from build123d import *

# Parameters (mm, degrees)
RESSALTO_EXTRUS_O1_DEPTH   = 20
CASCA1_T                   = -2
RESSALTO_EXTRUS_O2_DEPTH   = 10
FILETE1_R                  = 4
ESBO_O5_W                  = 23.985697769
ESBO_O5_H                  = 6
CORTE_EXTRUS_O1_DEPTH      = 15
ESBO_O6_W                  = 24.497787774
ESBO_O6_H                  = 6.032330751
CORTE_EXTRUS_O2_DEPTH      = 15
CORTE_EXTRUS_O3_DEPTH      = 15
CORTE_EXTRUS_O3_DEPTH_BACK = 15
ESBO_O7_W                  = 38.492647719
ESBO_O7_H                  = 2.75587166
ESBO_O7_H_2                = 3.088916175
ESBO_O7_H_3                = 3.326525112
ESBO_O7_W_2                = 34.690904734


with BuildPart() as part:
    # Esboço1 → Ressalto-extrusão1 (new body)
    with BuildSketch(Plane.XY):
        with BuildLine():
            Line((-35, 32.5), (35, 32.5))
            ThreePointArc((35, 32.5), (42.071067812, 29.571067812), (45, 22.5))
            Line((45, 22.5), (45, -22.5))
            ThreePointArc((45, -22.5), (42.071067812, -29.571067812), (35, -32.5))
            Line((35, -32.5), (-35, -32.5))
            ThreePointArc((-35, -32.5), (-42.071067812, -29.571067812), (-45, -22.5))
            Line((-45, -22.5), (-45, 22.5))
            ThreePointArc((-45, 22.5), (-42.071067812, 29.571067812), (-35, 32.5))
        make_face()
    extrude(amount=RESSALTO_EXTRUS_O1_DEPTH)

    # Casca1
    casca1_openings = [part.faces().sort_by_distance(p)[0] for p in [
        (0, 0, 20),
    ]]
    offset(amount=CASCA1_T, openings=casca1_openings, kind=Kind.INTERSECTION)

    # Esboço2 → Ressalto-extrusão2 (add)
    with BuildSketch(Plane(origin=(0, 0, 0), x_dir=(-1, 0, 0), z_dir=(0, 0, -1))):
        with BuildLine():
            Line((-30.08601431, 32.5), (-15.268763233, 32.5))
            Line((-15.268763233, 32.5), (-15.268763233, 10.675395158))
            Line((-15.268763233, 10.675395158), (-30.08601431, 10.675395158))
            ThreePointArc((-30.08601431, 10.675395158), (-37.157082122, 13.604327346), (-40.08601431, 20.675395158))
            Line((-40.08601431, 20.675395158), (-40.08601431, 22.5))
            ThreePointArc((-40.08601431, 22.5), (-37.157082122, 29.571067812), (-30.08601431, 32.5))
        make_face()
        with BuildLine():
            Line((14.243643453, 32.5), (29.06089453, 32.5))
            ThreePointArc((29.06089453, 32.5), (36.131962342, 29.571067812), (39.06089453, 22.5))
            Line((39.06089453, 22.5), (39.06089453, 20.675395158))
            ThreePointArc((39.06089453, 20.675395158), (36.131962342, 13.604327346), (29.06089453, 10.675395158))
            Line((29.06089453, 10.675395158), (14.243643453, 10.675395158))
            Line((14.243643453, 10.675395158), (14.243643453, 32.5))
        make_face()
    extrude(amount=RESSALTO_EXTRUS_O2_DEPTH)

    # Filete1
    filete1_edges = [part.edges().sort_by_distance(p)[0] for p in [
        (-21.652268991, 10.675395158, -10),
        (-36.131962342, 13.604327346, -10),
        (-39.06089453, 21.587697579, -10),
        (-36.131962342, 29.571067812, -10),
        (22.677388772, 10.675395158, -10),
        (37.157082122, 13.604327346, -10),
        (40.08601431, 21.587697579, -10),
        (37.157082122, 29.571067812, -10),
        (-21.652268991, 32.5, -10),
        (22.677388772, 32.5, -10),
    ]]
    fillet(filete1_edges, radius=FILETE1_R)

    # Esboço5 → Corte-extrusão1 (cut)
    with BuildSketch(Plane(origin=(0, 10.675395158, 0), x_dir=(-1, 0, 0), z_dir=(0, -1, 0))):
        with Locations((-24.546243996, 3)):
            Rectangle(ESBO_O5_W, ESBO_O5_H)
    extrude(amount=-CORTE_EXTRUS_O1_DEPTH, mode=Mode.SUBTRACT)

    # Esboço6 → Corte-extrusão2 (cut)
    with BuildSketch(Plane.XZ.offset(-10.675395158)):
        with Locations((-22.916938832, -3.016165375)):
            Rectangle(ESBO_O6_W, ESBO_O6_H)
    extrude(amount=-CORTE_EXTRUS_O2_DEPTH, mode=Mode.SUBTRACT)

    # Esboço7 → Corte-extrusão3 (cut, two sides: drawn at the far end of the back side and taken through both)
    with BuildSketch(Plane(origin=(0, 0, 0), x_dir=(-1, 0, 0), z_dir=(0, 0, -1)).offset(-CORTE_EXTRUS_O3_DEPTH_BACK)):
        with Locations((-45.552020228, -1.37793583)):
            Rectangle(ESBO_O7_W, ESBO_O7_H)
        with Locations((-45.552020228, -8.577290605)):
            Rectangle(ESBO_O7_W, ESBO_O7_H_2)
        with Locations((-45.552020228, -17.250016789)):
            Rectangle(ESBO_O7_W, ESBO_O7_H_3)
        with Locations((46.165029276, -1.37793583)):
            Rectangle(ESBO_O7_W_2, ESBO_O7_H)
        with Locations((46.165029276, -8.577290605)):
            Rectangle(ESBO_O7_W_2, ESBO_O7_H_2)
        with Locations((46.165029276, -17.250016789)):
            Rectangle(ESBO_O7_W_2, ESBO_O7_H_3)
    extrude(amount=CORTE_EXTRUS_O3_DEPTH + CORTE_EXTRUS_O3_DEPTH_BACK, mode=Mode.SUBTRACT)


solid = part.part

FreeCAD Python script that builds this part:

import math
import FreeCAD as App
import Part
import Sketcher


def edges_at(feature, points):
    """Names of the edges that pass closest to the given points."""
    edges = feature.Shape.Edges
    near = lambda p: min(range(len(edges)), key=lambda i: edges[i].distToShape(Part.Vertex(*p))[0])
    return sorted({f"Edge{near(p) + 1}" for p in points})


def faces_at(feature, points):
    """Names of the faces that lie closest to the given points."""
    faces = feature.Shape.Faces
    near = lambda p: min(range(len(faces)), key=lambda i: faces[i].distToShape(Part.Vertex(*p))[0])
    return sorted({f"Face{near(p) + 1}" for p in points})


def add_polygon(sketch, points):
    """Adds a closed chain of lines whose ends are joined by coincident constraints."""
    first, n = sketch.GeometryCount, len(points)
    for a, b in zip(points, points[1:] + points[:1]):
        sketch.addGeometry(Part.LineSegment(App.Vector(*a, 0), App.Vector(*b, 0)), False)
    for i in range(n):
        sketch.addConstraint(Sketcher.Constraint("Coincident", first + i, 2, first + (i + 1) % n, 1))

doc = App.newDocument("Part")
params = doc.addObject("Spreadsheet::Sheet", "Params")
for row, (alias, value) in enumerate([
    ("sketch1_radius", "10 mm"),
    ("sketch1_width", "70 mm"),
    ("sketch1_height", "45 mm"),
    ("pad1_length", "20 mm"),
    ("thickness_wall", "2 mm"),
    ("sketch2_radius", "10 mm"),
    ("pad2_length", "10 mm"),
    ("fillet_radius", "4 mm"),
    ("sketch3_height", "6 mm"),
    ("pocket1_length", "15 mm"),
    ("pocket2_length", "15 mm"),
    ("pocket3_length", "15 mm"),
    ("pocket3_length2", "15 mm"),
], start=1):
    params.set(f"A{row}", alias)
    params.set(f"B{row}", "=" + value)
    params.setAlias(f"B{row}", alias)

body = doc.addObject("PartDesign::Body", "Body")

# Sketch on XY plane
sketch1 = doc.addObject("Sketcher::SketchObject", "Sketch")
body.addObject(sketch1)
sketch1.AttachmentSupport = (doc.XY_Plane, [""])
sketch1.MapMode = "FlatFace"
sketch1.addGeometry(Part.LineSegment(App.Vector(35, 32.5, 0), App.Vector(-35, 32.5, 0)), False)
sketch1.addGeometry(Part.ArcOfCircle(Part.Circle(App.Vector(-35, 22.5, 0), App.Vector(0, 0, 1), 10), math.radians(90), math.radians(180)), False)
sketch1.addGeometry(Part.LineSegment(App.Vector(-45, 22.5, 0), App.Vector(-45, -22.5, 0)), False)
sketch1.addGeometry(Part.ArcOfCircle(Part.Circle(App.Vector(-35, -22.5, 0), App.Vector(0, 0, 1), 10), math.radians(180), math.radians(270)), False)
sketch1.addGeometry(Part.LineSegment(App.Vector(-35, -32.5, 0), App.Vector(35, -32.5, 0)), False)
sketch1.addGeometry(Part.ArcOfCircle(Part.Circle(App.Vector(35, -22.5, 0), App.Vector(0, 0, 1), 10), math.radians(-90), math.radians(0)), False)
sketch1.addGeometry(Part.LineSegment(App.Vector(45, -22.5, 0), App.Vector(45, 22.5, 0)), False)
sketch1.addGeometry(Part.ArcOfCircle(Part.Circle(App.Vector(35, 22.5, 0), App.Vector(0, 0, 1), 10), math.radians(0), math.radians(90)), False)
sketch1.addConstraint(Sketcher.Constraint("Tangent", 0, 2, 1, 1))
sketch1.addConstraint(Sketcher.Constraint("Tangent", 1, 2, 2, 1))
sketch1.addConstraint(Sketcher.Constraint("Tangent", 2, 2, 3, 1))
sketch1.addConstraint(Sketcher.Constraint("Tangent", 3, 2, 4, 1))
sketch1.addConstraint(Sketcher.Constraint("Tangent", 4, 2, 5, 1))
sketch1.addConstraint(Sketcher.Constraint("Tangent", 5, 2, 6, 1))
sketch1.addConstraint(Sketcher.Constraint("Tangent", 6, 2, 7, 1))
sketch1.addConstraint(Sketcher.Constraint("Tangent", 7, 2, 0, 1))
sketch1.addConstraint(Sketcher.Constraint("Horizontal", 0))
sketch1.addConstraint(Sketcher.Constraint("Vertical", 2))
sketch1.addConstraint(Sketcher.Constraint("Horizontal", 4))
sketch1.addConstraint(Sketcher.Constraint("Vertical", 6))
sketch1.addConstraint(Sketcher.Constraint("Equal", 1, 3))
sketch1.addConstraint(Sketcher.Constraint("Equal", 3, 5))
sketch1.addConstraint(Sketcher.Constraint("Equal", 5, 7))
sketch1.addConstraint(Sketcher.Constraint("Symmetric", 1, 3, 5, 3, -1, 1))
sketch1.addConstraint(Sketcher.Constraint("Radius", 1, 10.0))
sketch1.addConstraint(Sketcher.Constraint("DistanceX", 0, 2, 0, 1, 70.0))
sketch1.addConstraint(Sketcher.Constraint("DistanceY", 2, 2, 2, 1, 45.0))
sketch1.setExpression("Constraints[16]", "Params.sketch1_radius")
sketch1.setExpression("Constraints[17]", "Params.sketch1_width")
sketch1.setExpression("Constraints[18]", "Params.sketch1_height")
pad1 = doc.addObject("PartDesign::Pad", "Pad")
body.addObject(pad1)
pad1.Profile = sketch1
pad1.setExpression("Length", "Params.pad1_length")
doc.recompute()

thickness = doc.addObject("PartDesign::Thickness", "Thickness")
body.addObject(thickness)
thickness.Base = (pad1, faces_at(pad1, [(0, 0, 20)]))
thickness.setExpression("Value", "Params.thickness_wall")
thickness.Reversed = True
thickness.Join = "Intersection"

# Sketch on XY plane
sketch2 = doc.addObject("Sketcher::SketchObject", "Sketch001")
body.addObject(sketch2)
sketch2.AttachmentSupport = (doc.XY_Plane, [""])
sketch2.MapMode = "FlatFace"
sketch2.addGeometry(Part.LineSegment(App.Vector(15.268763, 32.5, 0), App.Vector(30.086014, 32.5, 0)), False)
sketch2.addGeometry(Part.ArcOfCircle(Part.Circle(App.Vector(30.086014, 22.5, 0), App.Vector(0, 0, 1), 10), math.radians(0), math.radians(90)), False)
sketch2.addGeometry(Part.LineSegment(App.Vector(40.086014, 22.5, 0), App.Vector(40.086014, 20.675395, 0)), False)
sketch2.addGeometry(Part.ArcOfCircle(Part.Circle(App.Vector(30.086014, 20.675395, 0), App.Vector(0, 0, 1), 10), math.radians(-90), math.radians(0)), False)
sketch2.addGeometry(Part.LineSegment(App.Vector(30.086014, 10.675395, 0), App.Vector(15.268763, 10.675395, 0)), False)
sketch2.addGeometry(Part.LineSegment(App.Vector(15.268763, 10.675395, 0), App.Vector(15.268763, 32.5, 0)), False)
sketch2.addGeometry(Part.LineSegment(App.Vector(-29.060895, 32.5, 0), App.Vector(-14.243643, 32.5, 0)), False)
sketch2.addGeometry(Part.LineSegment(App.Vector(-14.243643, 32.5, 0), App.Vector(-14.243643, 10.675395, 0)), False)
sketch2.addGeometry(Part.LineSegment(App.Vector(-14.243643, 10.675395, 0), App.Vector(-29.060895, 10.675395, 0)), False)
sketch2.addGeometry(Part.ArcOfCircle(Part.Circle(App.Vector(-29.060895, 20.675395, 0), App.Vector(0, 0, 1), 10), math.radians(180), math.radians(270)), False)
sketch2.addGeometry(Part.LineSegment(App.Vector(-39.060895, 20.675395, 0), App.Vector(-39.060895, 22.5, 0)), False)
sketch2.addGeometry(Part.ArcOfCircle(Part.Circle(App.Vector(-29.060895, 22.5, 0), App.Vector(0, 0, 1), 10), math.radians(90), math.radians(180)), False)
sketch2.addConstraint(Sketcher.Constraint("Tangent", 0, 2, 1, 2))
sketch2.addConstraint(Sketcher.Constraint("Tangent", 1, 1, 2, 1))
sketch2.addConstraint(Sketcher.Constraint("Tangent", 2, 2, 3, 2))
sketch2.addConstraint(Sketcher.Constraint("Tangent", 3, 1, 4, 1))
sketch2.addConstraint(Sketcher.Constraint("Coincident", 4, 2, 5, 1))
sketch2.addConstraint(Sketcher.Constraint("Coincident", 5, 2, 0, 1))
sketch2.addConstraint(Sketcher.Constraint("Coincident", 6, 2, 7, 1))
sketch2.addConstraint(Sketcher.Constraint("Coincident", 7, 2, 8, 1))
sketch2.addConstraint(Sketcher.Constraint("Tangent", 8, 2, 9, 2))
sketch2.addConstraint(Sketcher.Constraint("Tangent", 9, 1, 10, 1))
sketch2.addConstraint(Sketcher.Constraint("Tangent", 10, 2, 11, 2))
sketch2.addConstraint(Sketcher.Constraint("Tangent", 11, 1, 6, 1))
sketch2.addConstraint(Sketcher.Constraint("Horizontal", 0))
sketch2.addConstraint(Sketcher.Constraint("Vertical", 2))
sketch2.addConstraint(Sketcher.Constraint("Horizontal", 4))
sketch2.addConstraint(Sketcher.Constraint("Vertical", 5))
sketch2.addConstraint(Sketcher.Constraint("Horizontal", 6))
sketch2.addConstraint(Sketcher.Constraint("Vertical", 7))
sketch2.addConstraint(Sketcher.Constraint("Horizontal", 8))
sketch2.addConstraint(Sketcher.Constraint("Vertical", 10))
sketch2.addConstraint(Sketcher.Constraint("Equal", 1, 3))
sketch2.addConstraint(Sketcher.Constraint("Equal", 3, 9))
sketch2.addConstraint(Sketcher.Constraint("Equal", 9, 11))
sketch2.addConstraint(Sketcher.Constraint("Horizontal", 3, 3, 9, 3))
sketch2.addConstraint(Sketcher.Constraint("Horizontal", 1, 3, 11, 3))
sketch2.addConstraint(Sketcher.Constraint("Equal", 4, 6))
sketch2.addConstraint(Sketcher.Constraint("Radius", 1, 10.0))
sketch2.addConstraint(Sketcher.Constraint("DistanceY", -1, 1, 1, 3, 22.5))
sketch2.addConstraint(Sketcher.Constraint("DistanceX", 0, 1, 0, 2, 14.817251))
sketch2.addConstraint(Sketcher.Constraint("DistanceY", 2, 2, 2, 1, 1.824605))
sketch2.addConstraint(Sketcher.Constraint("DistanceX", 9, 3, 3, 3, 59.146909))
sketch2.addConstraint(Sketcher.Constraint("DistanceX", -1, 1, 1, 3, 30.086014))
sketch2.setExpression("Constraints[26]", "Params.sketch2_radius")
pad2 = doc.addObject("PartDesign::Pad", "Pad001")
body.addObject(pad2)
pad2.Profile = sketch2
pad2.setExpression("Length", "Params.pad2_length")
pad2.Reversed = True
doc.recompute()

fillet = doc.addObject("PartDesign::Fillet", "Fillet")
body.addObject(fillet)
fillet.Base = (pad2, edges_at(pad2, [
    (-21.652, 10.675, -10),
    (-36.132, 13.604, -10),
    (-39.061, 21.588, -10),
    (-36.132, 29.571, -10),
    (22.677, 10.675, -10),
    (37.157, 13.604, -10),
    (40.086, 21.588, -10),
    (37.157, 29.571, -10),
    (-21.652, 32.5, -10),
    (22.677, 32.5, -10),
]))
fillet.setExpression("Radius", "Params.fillet_radius")

# Sketch on XZ plane
sketch3 = doc.addObject("Sketcher::SketchObject", "Sketch002")
body.addObject(sketch3)
sketch3.AttachmentSupport = (doc.XZ_Plane, [""])
sketch3.MapMode = "FlatFace"
sketch3.AttachmentOffset = App.Placement(App.Vector(0, 0, -10.675395), App.Rotation())
add_polygon(sketch3, [(36.539093, -6), (36.539093, 0), (12.553395, 0), (12.553395, -6)])  # lines 0-3
sketch3.addConstraint(Sketcher.Constraint("Vertical", 0))
sketch3.addConstraint(Sketcher.Constraint("Horizontal", 1))
sketch3.addConstraint(Sketcher.Constraint("Vertical", 2))
sketch3.addConstraint(Sketcher.Constraint("Horizontal", 3))
sketch3.addConstraint(Sketcher.Constraint("PointOnObject", 0, 2, -1))
sketch3.addConstraint(Sketcher.Constraint("DistanceY", 0, 1, 0, 2, 6.0))
sketch3.addConstraint(Sketcher.Constraint("DistanceX", 1, 2, 1, 1, 23.985698))
sketch3.addConstraint(Sketcher.Constraint("DistanceX", -1, 1, 0, 2, 36.539093))
sketch3.setExpression("Constraints[9]", "Params.sketch3_height")
pocket1 = doc.addObject("PartDesign::Pocket", "Pocket")
body.addObject(pocket1)
pocket1.Profile = sketch3
pocket1.setExpression("Length", "Params.pocket1_length")

# Sketch on XZ plane
sketch4 = doc.addObject("Sketcher::SketchObject", "Sketch003")
body.addObject(sketch4)
sketch4.AttachmentSupport = (doc.XZ_Plane, [""])
sketch4.MapMode = "FlatFace"
sketch4.AttachmentOffset = App.Placement(App.Vector(0, 0, -10.675395), App.Rotation())
add_polygon(sketch4, [(-35.165833, 0), (-35.165833, -6.032331), (-10.668045, -6.032331), (-10.668045, 0)])  # lines 0-3
sketch4.addConstraint(Sketcher.Constraint("Vertical", 0))
sketch4.addConstraint(Sketcher.Constraint("Horizontal", 1))
sketch4.addConstraint(Sketcher.Constraint("Vertical", 2))
sketch4.addConstraint(Sketcher.Constraint("Horizontal", 3))
sketch4.addConstraint(Sketcher.Constraint("PointOnObject", 2, 2, -1))
sketch4.addConstraint(Sketcher.Constraint("DistanceY", 0, 2, 0, 1, 6.032331))
sketch4.addConstraint(Sketcher.Constraint("DistanceX", 1, 1, 1, 2, 24.497788))
sketch4.addConstraint(Sketcher.Constraint("DistanceX", 0, 2, -1, 1, 35.165833))
pocket2 = doc.addObject("PartDesign::Pocket", "Pocket001")
body.addObject(pocket2)
pocket2.Profile = sketch4
pocket2.setExpression("Length", "Params.pocket2_length")

# Sketch on XY plane
sketch5 = doc.addObject("Sketcher::SketchObject", "Sketch004")
body.addObject(sketch5)
sketch5.AttachmentSupport = (doc.XY_Plane, [""])
sketch5.MapMode = "FlatFace"
add_polygon(sketch5, [(64.798344, 0), (64.798344, -2.755872), (26.305696, -2.755872), (26.305696, 0)])  # lines 0-3
add_polygon(sketch5, [(64.798344, -7.032833), (64.798344, -10.121749), (26.305696, -10.121749), (26.305696, -7.032833)])  # lines 4-7
add_polygon(sketch5, [(64.798344, -15.586754), (64.798344, -18.913279), (26.305696, -18.913279), (26.305696, -15.586754)])  # lines 8-11
add_polygon(sketch5, [(-28.819577, 0), (-28.819577, -2.755872), (-63.510482, -2.755872), (-63.510482, 0)])  # lines 12-15
add_polygon(sketch5, [(-28.819577, -7.032833), (-28.819577, -10.121749), (-63.510482, -10.121749), (-63.510482, -7.032833)])  # lines 16-19
add_polygon(sketch5, [(-28.819577, -15.586754), (-28.819577, -18.913279), (-63.510482, -18.913279), (-63.510482, -15.586754)])  # lines 20-23
sketch5.addConstraint(Sketcher.Constraint("Vertical", 0))
sketch5.addConstraint(Sketcher.Constraint("Horizontal", 1))
sketch5.addConstraint(Sketcher.Constraint("Vertical", 2))
sketch5.addConstraint(Sketcher.Constraint("Horizontal", 3))
sketch5.addConstraint(Sketcher.Constraint("Vertical", 4))
sketch5.addConstraint(Sketcher.Constraint("Horizontal", 5))
sketch5.addConstraint(Sketcher.Constraint("Vertical", 6))
sketch5.addConstraint(Sketcher.Constraint("Horizontal", 7))
sketch5.addConstraint(Sketcher.Constraint("Vertical", 8))
sketch5.addConstraint(Sketcher.Constraint("Horizontal", 9))
sketch5.addConstraint(Sketcher.Constraint("Vertical", 10))
sketch5.addConstraint(Sketcher.Constraint("Horizontal", 11))
sketch5.addConstraint(Sketcher.Constraint("Vertical", 12))
sketch5.addConstraint(Sketcher.Constraint("Horizontal", 13))
sketch5.addConstraint(Sketcher.Constraint("Vertical", 14))
sketch5.addConstraint(Sketcher.Constraint("Horizontal", 15))
sketch5.addConstraint(Sketcher.Constraint("Vertical", 16))
sketch5.addConstraint(Sketcher.Constraint("Horizontal", 17))
sketch5.addConstraint(Sketcher.Constraint("Vertical", 18))
sketch5.addConstraint(Sketcher.Constraint("Horizontal", 19))
sketch5.addConstraint(Sketcher.Constraint("Vertical", 20))
sketch5.addConstraint(Sketcher.Constraint("Horizontal", 21))
sketch5.addConstraint(Sketcher.Constraint("Vertical", 22))
sketch5.addConstraint(Sketcher.Constraint("Horizontal", 23))
sketch5.addConstraint(Sketcher.Constraint("PointOnObject", 2, 2, -1))
sketch5.addConstraint(Sketcher.Constraint("PointOnObject", 14, 2, -1))
sketch5.addConstraint(Sketcher.Constraint("Horizontal", 1, 2, 12, 2))
sketch5.addConstraint(Sketcher.Constraint("Horizontal", 5, 2, 16, 2))
sketch5.addConstraint(Sketcher.Constraint("Horizontal", 7, 2, 18, 2))
sketch5.addConstraint(Sketcher.Constraint("Horizontal", 9, 2, 20, 2))
sketch5.addConstraint(Sketcher.Constraint("Horizontal", 11, 2, 22, 2))
sketch5.addConstraint(Sketcher.Constraint("Vertical", 3, 2, 4, 2))
sketch5.addConstraint(Sketcher.Constraint("Vertical", 2, 2, 5, 2))
sketch5.addConstraint(Sketcher.Constraint("Vertical", 7, 2, 8, 2))
sketch5.addConstraint(Sketcher.Constraint("Vertical", 6, 2, 9, 2))
sketch5.addConstraint(Sketcher.Constraint("Vertical", 15, 2, 16, 2))
sketch5.addConstraint(Sketcher.Constraint("Vertical", 14, 2, 17, 2))
sketch5.addConstraint(Sketcher.Constraint("Vertical", 19, 2, 20, 2))
sketch5.addConstraint(Sketcher.Constraint("Vertical", 18, 2, 21, 2))
sketch5.addConstraint(Sketcher.Constraint("DistanceY", 0, 2, 0, 1, 2.755872))
sketch5.addConstraint(Sketcher.Constraint("DistanceX", 1, 2, 1, 1, 38.492648))
sketch5.addConstraint(Sketcher.Constraint("DistanceX", 13, 2, 13, 1, 34.690905))
sketch5.addConstraint(Sketcher.Constraint("DistanceY", 4, 2, 4, 1, 3.088916))
sketch5.addConstraint(Sketcher.Constraint("DistanceY", 8, 2, 8, 1, 3.326525))
sketch5.addConstraint(Sketcher.Constraint("DistanceY", 4, 2, -1, 1, 10.121749))
sketch5.addConstraint(Sketcher.Constraint("DistanceY", 8, 2, -1, 1, 18.913279))
sketch5.addConstraint(Sketcher.Constraint("DistanceX", 13, 2, -1, 1, 63.510482))
sketch5.addConstraint(Sketcher.Constraint("DistanceX", 13, 2, 1, 2, 89.816178))
pocket3 = doc.addObject("PartDesign::Pocket", "Pocket002")
body.addObject(pocket3)
pocket3.Profile = sketch5
pocket3.Type = "TwoLengths"
pocket3.setExpression("Length", "Params.pocket3_length")
pocket3.setExpression("Length2", "Params.pocket3_length2")

doc.recompute()
